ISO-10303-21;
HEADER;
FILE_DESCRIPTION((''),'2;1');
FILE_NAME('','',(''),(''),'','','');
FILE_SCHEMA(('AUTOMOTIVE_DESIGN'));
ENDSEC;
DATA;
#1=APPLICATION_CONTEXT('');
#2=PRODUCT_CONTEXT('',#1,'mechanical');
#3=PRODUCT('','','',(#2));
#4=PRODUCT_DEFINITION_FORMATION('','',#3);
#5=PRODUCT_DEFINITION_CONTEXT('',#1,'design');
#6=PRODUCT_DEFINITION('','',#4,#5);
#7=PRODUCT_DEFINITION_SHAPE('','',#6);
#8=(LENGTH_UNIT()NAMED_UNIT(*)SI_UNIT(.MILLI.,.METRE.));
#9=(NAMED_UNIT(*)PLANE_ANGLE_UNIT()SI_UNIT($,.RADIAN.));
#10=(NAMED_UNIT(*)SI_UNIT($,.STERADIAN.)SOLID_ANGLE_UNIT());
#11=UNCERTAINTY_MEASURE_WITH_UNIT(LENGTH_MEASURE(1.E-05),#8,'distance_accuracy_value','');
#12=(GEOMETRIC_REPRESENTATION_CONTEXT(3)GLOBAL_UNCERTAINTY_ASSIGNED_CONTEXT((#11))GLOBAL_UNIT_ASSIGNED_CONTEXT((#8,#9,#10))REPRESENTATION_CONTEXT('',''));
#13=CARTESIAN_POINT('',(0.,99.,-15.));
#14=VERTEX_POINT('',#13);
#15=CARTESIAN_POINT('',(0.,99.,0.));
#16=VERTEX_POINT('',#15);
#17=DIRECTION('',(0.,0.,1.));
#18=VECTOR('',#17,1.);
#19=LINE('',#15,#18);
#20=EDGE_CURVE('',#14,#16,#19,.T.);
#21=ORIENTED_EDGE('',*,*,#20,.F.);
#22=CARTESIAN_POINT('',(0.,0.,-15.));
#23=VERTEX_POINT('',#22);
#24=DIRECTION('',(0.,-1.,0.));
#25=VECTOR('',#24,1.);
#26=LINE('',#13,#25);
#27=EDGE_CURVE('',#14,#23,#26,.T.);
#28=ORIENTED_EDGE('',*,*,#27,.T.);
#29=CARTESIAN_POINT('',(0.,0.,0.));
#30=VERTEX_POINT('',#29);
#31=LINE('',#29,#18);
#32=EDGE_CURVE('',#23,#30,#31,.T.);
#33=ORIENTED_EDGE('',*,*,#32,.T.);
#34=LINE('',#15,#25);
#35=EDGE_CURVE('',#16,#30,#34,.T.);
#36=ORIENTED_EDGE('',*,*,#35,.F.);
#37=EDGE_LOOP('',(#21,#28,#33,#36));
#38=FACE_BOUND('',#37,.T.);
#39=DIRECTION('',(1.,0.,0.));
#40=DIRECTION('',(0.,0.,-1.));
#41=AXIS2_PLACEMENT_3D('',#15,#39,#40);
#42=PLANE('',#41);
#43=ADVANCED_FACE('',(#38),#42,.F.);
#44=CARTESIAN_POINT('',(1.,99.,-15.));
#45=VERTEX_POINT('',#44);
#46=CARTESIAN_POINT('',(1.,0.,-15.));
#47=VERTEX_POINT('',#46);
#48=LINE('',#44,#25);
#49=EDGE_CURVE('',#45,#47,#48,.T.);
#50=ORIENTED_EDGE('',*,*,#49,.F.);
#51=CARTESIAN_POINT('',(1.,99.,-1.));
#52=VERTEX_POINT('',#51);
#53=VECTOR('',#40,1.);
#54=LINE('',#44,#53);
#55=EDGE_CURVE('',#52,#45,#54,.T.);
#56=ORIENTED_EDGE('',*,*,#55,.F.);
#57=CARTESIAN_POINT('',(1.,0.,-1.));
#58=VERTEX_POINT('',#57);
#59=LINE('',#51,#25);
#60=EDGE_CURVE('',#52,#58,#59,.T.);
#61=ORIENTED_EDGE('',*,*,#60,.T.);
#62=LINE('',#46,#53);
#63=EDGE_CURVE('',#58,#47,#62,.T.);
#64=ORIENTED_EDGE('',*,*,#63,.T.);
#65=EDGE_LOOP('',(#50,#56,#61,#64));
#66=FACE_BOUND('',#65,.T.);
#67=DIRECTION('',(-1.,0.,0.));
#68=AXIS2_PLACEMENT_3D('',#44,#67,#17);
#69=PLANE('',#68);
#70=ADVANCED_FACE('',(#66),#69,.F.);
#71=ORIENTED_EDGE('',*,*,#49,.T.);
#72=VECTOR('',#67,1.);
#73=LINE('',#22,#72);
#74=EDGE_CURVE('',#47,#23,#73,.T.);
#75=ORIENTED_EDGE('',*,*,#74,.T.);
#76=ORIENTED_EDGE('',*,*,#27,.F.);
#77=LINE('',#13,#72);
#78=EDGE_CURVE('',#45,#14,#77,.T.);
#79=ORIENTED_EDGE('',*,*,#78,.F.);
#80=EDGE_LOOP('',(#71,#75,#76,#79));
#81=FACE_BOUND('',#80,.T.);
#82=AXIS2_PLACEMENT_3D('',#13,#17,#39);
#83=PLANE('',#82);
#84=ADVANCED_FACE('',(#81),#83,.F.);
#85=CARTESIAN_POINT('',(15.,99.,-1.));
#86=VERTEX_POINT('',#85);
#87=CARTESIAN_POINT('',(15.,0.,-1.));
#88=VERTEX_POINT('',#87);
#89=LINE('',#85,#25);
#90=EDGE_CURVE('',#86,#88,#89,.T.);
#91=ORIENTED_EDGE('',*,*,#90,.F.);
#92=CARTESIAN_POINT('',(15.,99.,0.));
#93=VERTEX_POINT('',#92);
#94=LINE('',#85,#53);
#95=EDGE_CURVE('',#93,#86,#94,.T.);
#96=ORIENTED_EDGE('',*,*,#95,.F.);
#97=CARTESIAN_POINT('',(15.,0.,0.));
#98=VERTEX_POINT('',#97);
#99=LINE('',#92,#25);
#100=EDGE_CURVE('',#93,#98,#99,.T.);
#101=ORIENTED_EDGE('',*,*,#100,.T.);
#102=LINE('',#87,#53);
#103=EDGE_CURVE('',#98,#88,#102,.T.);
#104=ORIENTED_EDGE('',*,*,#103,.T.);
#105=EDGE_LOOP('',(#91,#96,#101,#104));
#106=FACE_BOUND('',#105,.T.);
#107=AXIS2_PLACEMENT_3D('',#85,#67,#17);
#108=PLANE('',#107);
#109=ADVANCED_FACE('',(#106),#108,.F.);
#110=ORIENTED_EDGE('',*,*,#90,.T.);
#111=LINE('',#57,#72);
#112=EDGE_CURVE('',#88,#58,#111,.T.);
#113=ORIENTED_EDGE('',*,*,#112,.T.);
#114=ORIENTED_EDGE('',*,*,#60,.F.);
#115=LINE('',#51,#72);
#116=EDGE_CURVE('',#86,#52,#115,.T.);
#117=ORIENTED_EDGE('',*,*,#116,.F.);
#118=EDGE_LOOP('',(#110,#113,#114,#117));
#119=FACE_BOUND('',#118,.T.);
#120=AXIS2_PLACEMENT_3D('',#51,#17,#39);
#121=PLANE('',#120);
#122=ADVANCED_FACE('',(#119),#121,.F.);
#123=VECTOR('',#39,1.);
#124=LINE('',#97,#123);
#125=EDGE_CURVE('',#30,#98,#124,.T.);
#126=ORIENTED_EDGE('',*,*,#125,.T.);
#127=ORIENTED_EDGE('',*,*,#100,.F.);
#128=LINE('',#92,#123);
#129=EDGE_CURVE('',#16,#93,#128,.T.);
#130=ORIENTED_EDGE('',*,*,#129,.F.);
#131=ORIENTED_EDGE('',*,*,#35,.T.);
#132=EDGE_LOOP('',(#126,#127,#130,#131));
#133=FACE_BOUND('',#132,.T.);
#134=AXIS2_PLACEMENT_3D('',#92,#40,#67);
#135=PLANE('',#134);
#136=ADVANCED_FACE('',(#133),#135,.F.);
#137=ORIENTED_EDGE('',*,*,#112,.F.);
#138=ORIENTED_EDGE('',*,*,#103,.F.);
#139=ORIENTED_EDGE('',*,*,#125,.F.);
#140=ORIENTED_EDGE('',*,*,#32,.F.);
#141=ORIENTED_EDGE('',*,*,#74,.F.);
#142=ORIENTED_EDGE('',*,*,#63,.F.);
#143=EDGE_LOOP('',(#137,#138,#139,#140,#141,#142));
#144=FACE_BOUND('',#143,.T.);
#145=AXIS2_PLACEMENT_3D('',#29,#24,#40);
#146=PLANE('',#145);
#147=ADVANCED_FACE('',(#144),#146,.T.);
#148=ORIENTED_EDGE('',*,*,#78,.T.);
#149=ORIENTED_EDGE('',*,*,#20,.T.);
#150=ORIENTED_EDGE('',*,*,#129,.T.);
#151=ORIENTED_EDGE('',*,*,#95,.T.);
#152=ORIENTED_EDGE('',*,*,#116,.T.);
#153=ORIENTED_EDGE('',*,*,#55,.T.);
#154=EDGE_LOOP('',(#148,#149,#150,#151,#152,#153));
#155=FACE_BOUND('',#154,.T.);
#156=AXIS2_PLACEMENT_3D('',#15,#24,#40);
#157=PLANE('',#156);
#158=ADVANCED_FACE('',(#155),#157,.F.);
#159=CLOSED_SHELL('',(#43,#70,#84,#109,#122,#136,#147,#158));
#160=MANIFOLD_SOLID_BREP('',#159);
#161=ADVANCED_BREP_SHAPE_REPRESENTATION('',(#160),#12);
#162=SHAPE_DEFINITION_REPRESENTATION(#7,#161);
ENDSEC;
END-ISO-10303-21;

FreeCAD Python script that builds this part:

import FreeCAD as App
import Part
import Sketcher
from FreeCAD import Vector


def add_polygon(sketch, points):
    """Adds a closed chain of lines whose ends are joined by coincident constraints."""
    first, n = sketch.GeometryCount, len(points)
    for a, b in zip(points, points[1:] + points[:1]):
        sketch.addGeometry(Part.LineSegment(App.Vector(*a, 0), App.Vector(*b, 0)), False)
    for i in range(n):
        sketch.addConstraint(Sketcher.Constraint("Coincident", first + i, 2, first + (i + 1) % n, 1))

doc = App.newDocument("Part")
body = doc.addObject("PartDesign::Body", "Body")

sketch1 = doc.addObject("Sketcher::SketchObject", "Sketch")
body.addObject(sketch1)
sketch1.AttachmentSupport = (doc.XZ_Plane, [""])
sketch1.MapMode = "FlatFace"
add_polygon(sketch1, [(0, -15), (0, 0), (15, 0), (15, -1), (1, -1), (1, -15)])
sketch1.addConstraint(Sketcher.Constraint("Vertical", 0))
sketch1.addConstraint(Sketcher.Constraint("Horizontal", 1))
sketch1.addConstraint(Sketcher.Constraint("Vertical", 2))
sketch1.addConstraint(Sketcher.Constraint("Horizontal", 3))
sketch1.addConstraint(Sketcher.Constraint("Vertical", 4))
sketch1.addConstraint(Sketcher.Constraint("Horizontal", 5))
sketch1.addConstraint(Sketcher.Constraint("Coincident", 0, 2, -1, 1))
sketch1.addConstraint(Sketcher.Constraint("Equal", 1, 0))
sketch1.addConstraint(Sketcher.Constraint("Equal", 5, 2))
sketch1.addConstraint(Sketcher.Constraint("DistanceX", 1, 1, 1, 2, 15.0))
sketch1.addConstraint(Sketcher.Constraint("DistanceX", 3, 2, 3, 1, 14.0))
pad1 = doc.addObject("PartDesign::Pad", "Pad")
body.addObject(pad1)
pad1.Profile = sketch1
pad1.Length = 99
pad1.Reversed = True

doc.recompute()
